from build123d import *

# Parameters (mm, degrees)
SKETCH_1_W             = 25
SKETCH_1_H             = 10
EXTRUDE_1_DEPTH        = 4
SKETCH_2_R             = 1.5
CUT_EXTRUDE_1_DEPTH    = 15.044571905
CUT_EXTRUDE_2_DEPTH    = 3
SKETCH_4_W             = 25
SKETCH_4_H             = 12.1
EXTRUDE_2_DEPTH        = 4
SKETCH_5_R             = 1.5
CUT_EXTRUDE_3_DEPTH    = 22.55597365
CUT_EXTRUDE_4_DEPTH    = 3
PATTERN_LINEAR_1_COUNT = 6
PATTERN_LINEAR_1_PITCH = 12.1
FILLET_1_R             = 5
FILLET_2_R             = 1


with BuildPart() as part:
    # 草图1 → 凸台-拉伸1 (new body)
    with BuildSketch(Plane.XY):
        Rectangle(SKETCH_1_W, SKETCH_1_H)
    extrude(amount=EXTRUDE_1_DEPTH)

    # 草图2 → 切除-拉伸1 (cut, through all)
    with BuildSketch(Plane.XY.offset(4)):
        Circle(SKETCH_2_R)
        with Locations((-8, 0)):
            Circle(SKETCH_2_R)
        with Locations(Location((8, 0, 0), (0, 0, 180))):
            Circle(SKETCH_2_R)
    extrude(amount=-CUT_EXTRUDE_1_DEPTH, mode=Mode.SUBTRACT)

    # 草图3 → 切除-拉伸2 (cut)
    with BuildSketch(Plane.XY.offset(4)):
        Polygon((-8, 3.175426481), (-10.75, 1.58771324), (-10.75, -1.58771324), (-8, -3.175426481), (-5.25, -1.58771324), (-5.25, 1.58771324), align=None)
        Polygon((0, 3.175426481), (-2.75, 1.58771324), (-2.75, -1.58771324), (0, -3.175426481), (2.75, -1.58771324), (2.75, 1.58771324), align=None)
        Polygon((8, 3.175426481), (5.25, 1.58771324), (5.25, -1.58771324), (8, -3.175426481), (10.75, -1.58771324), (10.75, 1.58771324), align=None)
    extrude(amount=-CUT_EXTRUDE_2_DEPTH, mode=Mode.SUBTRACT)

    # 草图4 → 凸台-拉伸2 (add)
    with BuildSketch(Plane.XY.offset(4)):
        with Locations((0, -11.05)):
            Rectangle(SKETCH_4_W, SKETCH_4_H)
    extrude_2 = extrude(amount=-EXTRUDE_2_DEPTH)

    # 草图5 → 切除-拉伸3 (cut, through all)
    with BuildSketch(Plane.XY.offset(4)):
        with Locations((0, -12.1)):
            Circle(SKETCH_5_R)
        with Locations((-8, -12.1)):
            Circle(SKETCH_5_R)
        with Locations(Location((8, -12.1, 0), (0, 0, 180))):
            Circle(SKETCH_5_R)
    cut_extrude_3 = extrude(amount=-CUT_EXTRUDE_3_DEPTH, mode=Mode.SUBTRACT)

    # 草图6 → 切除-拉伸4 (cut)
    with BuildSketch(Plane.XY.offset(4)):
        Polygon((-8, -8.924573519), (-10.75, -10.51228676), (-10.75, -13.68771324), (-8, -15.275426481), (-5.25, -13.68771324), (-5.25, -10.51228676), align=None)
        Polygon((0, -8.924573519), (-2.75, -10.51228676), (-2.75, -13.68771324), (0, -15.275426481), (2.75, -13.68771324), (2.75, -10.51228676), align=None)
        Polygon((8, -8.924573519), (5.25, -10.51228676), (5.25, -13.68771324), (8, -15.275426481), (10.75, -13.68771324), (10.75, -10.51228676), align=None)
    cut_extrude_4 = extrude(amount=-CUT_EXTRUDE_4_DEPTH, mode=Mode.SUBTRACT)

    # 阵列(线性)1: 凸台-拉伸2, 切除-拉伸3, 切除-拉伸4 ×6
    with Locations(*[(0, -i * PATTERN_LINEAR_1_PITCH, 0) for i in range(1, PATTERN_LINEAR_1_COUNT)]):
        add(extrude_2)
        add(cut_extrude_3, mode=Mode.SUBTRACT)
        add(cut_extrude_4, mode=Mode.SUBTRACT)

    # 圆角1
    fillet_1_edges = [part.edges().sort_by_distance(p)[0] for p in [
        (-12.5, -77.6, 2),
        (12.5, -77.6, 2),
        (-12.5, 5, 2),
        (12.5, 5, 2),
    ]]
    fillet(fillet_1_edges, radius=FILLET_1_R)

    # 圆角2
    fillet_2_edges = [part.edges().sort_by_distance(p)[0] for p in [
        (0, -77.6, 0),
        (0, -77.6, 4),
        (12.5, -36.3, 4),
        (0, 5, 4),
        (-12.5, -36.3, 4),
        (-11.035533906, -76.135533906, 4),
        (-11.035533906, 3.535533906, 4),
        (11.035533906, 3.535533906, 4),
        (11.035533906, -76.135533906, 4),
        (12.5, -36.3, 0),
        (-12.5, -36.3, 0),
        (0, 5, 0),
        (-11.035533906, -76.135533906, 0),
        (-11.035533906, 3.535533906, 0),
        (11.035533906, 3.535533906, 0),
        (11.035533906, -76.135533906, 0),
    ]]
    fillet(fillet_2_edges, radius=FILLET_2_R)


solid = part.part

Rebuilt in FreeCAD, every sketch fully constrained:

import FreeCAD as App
import Part
import Sketcher

V = App.Vector
Q = App.Units.Quantity


def edges_at(feature, points):
    """Names of the edges that pass closest to the given points."""
    edges = feature.Shape.Edges
    near = lambda p: min(range(len(edges)), key=lambda i: edges[i].distToShape(Part.Vertex(*p))[0])
    return sorted({f"Edge{near(p) + 1}" for p in points})


def add_polygon(sketch, points):
    """Adds a closed chain of lines whose ends are joined by coincident constraints."""
    first, n = sketch.GeometryCount, len(points)
    for a, b in zip(points, points[1:] + points[:1]):
        sketch.addGeometry(Part.LineSegment(App.Vector(*a, 0), App.Vector(*b, 0)), False)
    for i in range(n):
        sketch.addConstraint(Sketcher.Constraint("Coincident", first + i, 2, first + (i + 1) % n, 1))

doc = App.newDocument("Part")
body = doc.addObject("PartDesign::Body", "Body")

sketch1 = body.newObject("Sketcher::SketchObject", "Sketch")
sketch1.AttachmentSupport = (doc.getObject("XY_Plane"), [""])
sketch1.MapMode = "FlatFace"
add_polygon(sketch1, [(-12.5, 5), (-12.5, -5), (12.5, -5), (12.5, 5)])
sketch1.addConstraint(Sketcher.Constraint("Vertical", 0))
sketch1.addConstraint(Sketcher.Constraint("Horizontal", 1))
sketch1.addConstraint(Sketcher.Constraint("Vertical", 2))
sketch1.addConstraint(Sketcher.Constraint("Horizontal", 3))
sketch1.addConstraint(Sketcher.Constraint("Symmetric", 0, 2, 2, 2, -1, 1))
sketch1.addConstraint(Sketcher.Constraint("DistanceX", 1, 1, 1, 2, 25.0))
sketch1.addConstraint(Sketcher.Constraint("DistanceY", 0, 2, 0, 1, 10.0))
pad1 = body.newObject("PartDesign::Pad", "Pad")
pad1.Profile = sketch1
pad1.Length = 4

sketch2 = body.newObject("Sketcher::SketchObject", "Sketch001")
sketch2.AttachmentSupport = (doc.getObject("XY_Plane"), [""])
sketch2.MapMode = "FlatFace"
sketch2.AttachmentOffset = App.Placement(V(0, 0, 4), App.Rotation())
sketch2.addGeometry(Part.Circle(V(0, 0, 0), V(0, 0, 1), 1.5), False)
sketch2.addGeometry(Part.Circle(V(-8, 0, 0), V(0, 0, 1), 1.5), False)
sketch2.addGeometry(Part.Circle(V(8, 0, 0), V(0, 0, 1), 1.5), False)
sketch2.addConstraint(Sketcher.Constraint("Coincident", 0, 3, -1, 1))
sketch2.addConstraint(Sketcher.Constraint("Equal", 0, 1))
sketch2.addConstraint(Sketcher.Constraint("Equal", 1, 2))
sketch2.addConstraint(Sketcher.Constraint("Symmetric", 1, 3, 2, 3, -1, 1))
sketch2.addConstraint(Sketcher.Constraint("PointOnObject", 1, 3, -1))
sketch2.addConstraint(Sketcher.Constraint("Diameter", 0, 3.0))
sketch2.addConstraint(Sketcher.Constraint("DistanceX", 1, 3, -1, 1, 8.0))
pocket1 = body.newObject("PartDesign::Pocket", "Pocket")
pocket1.Profile = sketch2
pocket1.Type = "ThroughAll"

sketch3 = body.newObject("Sketcher::SketchObject", "Sketch002")
sketch3.AttachmentSupport = (doc.getObject("XY_Plane"), [""])
sketch3.MapMode = "FlatFace"
sketch3.AttachmentOffset = App.Placement(V(0, 0, 4), App.Rotation())
add_polygon(sketch3, [(-8, 3.175426), (-10.75, 1.587713), (-10.75, -1.587713), (-8, -3.175426), (-5.25, -1.587713), (-5.25, 1.587713)])
add_polygon(sketch3, [(0, 3.175426), (-2.75, 1.587713), (-2.75, -1.587713), (0, -3.175426), (2.75, -1.587713), (2.75, 1.587713)])
add_polygon(sketch3, [(8, 3.175426), (5.25, 1.587713), (5.25, -1.587713), (8, -3.175426), (10.75, -1.587713), (10.75, 1.587713)])
sketch3.addConstraint(Sketcher.Constraint("Vertical", 1))
sketch3.addConstraint(Sketcher.Constraint("Vertical", 4))
sketch3.addConstraint(Sketcher.Constraint("Vertical", 7))
sketch3.addConstraint(Sketcher.Constraint("Vertical", 10))
sketch3.addConstraint(Sketcher.Constraint("Vertical", 13))
sketch3.addConstraint(Sketcher.Constraint("Vertical", 16))
sketch3.addConstraint(Sketcher.Constraint("Symmetric", 6, 2, 9, 2, -1, 1))
sketch3.addConstraint(Sketcher.Constraint("Symmetric", 8, 2, 11, 2, -1, 1))
sketch3.addConstraint(Sketcher.Constraint("Symmetric", 3, 2, 12, 2, -1, 1))
sketch3.addConstraint(Sketcher.Constraint("Symmetric", 5, 2, 14, 2, -1, 1))
sketch3.addConstraint(Sketcher.Constraint("Symmetric", 0, 2, 15, 2, -1, 1))
sketch3.addConstraint(Sketcher.Constraint("Symmetric", 2, 2, 17, 2, -1, 1))
sketch3.addConstraint(Sketcher.Constraint("Symmetric", 2, 2, 14, 2, -2))
sketch3.addConstraint(Sketcher.Constraint("PointOnObject", 8, 2, -2))
sketch3.addConstraint(Sketcher.Constraint("Parallel", 0, 3))
sketch3.addConstraint(Sketcher.Constraint("Parallel", 2, 5))
sketch3.addConstraint(Sketcher.Constraint("Parallel", 3, 6))
sketch3.addConstraint(Sketcher.Constraint("Parallel", 5, 8))
sketch3.addConstraint(Sketcher.Constraint("Parallel", 8, 11))
sketch3.addConstraint(Sketcher.Constraint("Parallel", 11, 14))
sketch3.addConstraint(Sketcher.Constraint("Parallel", 14, 17))
sketch3.addConstraint(Sketcher.Constraint("Horizontal", 1, 2, 3, 2))
sketch3.addConstraint(Sketcher.Constraint("Horizontal", 0, 2, 4, 2))
sketch3.addConstraint(Sketcher.Constraint("Horizontal", 4, 2, 6, 2))
sketch3.addConstraint(Sketcher.Constraint("Horizontal", 2, 2, 8, 2))
sketch3.addConstraint(Sketcher.Constraint("Angle", 0, Q("-150 deg")))
sketch3.addConstraint(Sketcher.Constraint("DistanceX", 2, 2, -1, 1, 8.0))
sketch3.addConstraint(Sketcher.Constraint("DistanceX", 1, 2, 3, 2, 5.5))
sketch3.addConstraint(Sketcher.Constraint("DistanceY", 1, 2, 1, 1, 3.175426))
pocket2 = body.newObject("PartDesign::Pocket", "Pocket001")
pocket2.Profile = sketch3
pocket2.Length = 3

sketch4 = body.newObject("Sketcher::SketchObject", "Sketch003")
sketch4.AttachmentSupport = (doc.getObject("XY_Plane"), [""])
sketch4.MapMode = "FlatFace"
sketch4.AttachmentOffset = App.Placement(V(0, 0, 4), App.Rotation())
add_polygon(sketch4, [(-12.5, -5), (-12.5, -17.1), (12.5, -17.1), (12.5, -5)])
sketch4.addConstraint(Sketcher.Constraint("Vertical", 0))
sketch4.addConstraint(Sketcher.Constraint("Horizontal", 1))
sketch4.addConstraint(Sketcher.Constraint("Vertical", 2))
sketch4.addConstraint(Sketcher.Constraint("Horizontal", 3))
sketch4.addConstraint(Sketcher.Constraint("DistanceX", 1, 1, 1, 2, 25.0))
sketch4.addConstraint(Sketcher.Constraint("DistanceY", 0, 2, 0, 1, 12.1))
sketch4.addConstraint(Sketcher.Constraint("DistanceY", 2, 2, -1, 1, 5.0))
sketch4.addConstraint(Sketcher.Constraint("DistanceX", 0, 2, -1, 1, 12.5))
pad2 = body.newObject("PartDesign::Pad", "Pad001")
pad2.Profile = sketch4
pad2.Length = 4
pad2.Reversed = True

sketch5 = body.newObject("Sketcher::SketchObject", "Sketch004")
sketch5.AttachmentSupport = (doc.getObject("XY_Plane"), [""])
sketch5.MapMode = "FlatFace"
sketch5.AttachmentOffset = App.Placement(V(0, 0, 4), App.Rotation())
sketch5.addGeometry(Part.Circle(V(0, -12.1, 0), V(0, 0, 1), 1.5), False)
sketch5.addGeometry(Part.Circle(V(-8, -12.1, 0), V(0, 0, 1), 1.5), False)
sketch5.addGeometry(Part.Circle(V(8, -12.1, 0), V(0, 0, 1), 1.5), False)
sketch5.addConstraint(Sketcher.Constraint("Equal", 0, 1))
sketch5.addConstraint(Sketcher.Constraint("Equal", 1, 2))
sketch5.addConstraint(Sketcher.Constraint("Symmetric", 1, 3, 2, 3, -2))
sketch5.addConstraint(Sketcher.Constraint("PointOnObject", 0, 3, -2))
sketch5.addConstraint(Sketcher.Constraint("Horizontal", 0, 3, 1, 3))
sketch5.addConstraint(Sketcher.Constraint("Diameter", 0, 3.0))
sketch5.addConstraint(Sketcher.Constraint("DistanceX", 1, 3, -1, 1, 8.0))
sketch5.addConstraint(Sketcher.Constraint("DistanceY", 0, 3, -1, 1, 12.1))
pocket3 = body.newObject("PartDesign::Pocket", "Pocket002")
pocket3.Profile = sketch5
pocket3.Type = "ThroughAll"

sketch6 = body.newObject("Sketcher::SketchObject", "Sketch005")
sketch6.AttachmentSupport = (doc.getObject("XY_Plane"), [""])
sketch6.MapMode = "FlatFace"
sketch6.AttachmentOffset = App.Placement(V(0, 0, 4), App.Rotation())
add_polygon(sketch6, [(-8, -8.924574), (-10.75, -10.512287), (-10.75, -13.687713), (-8, -15.275426), (-5.25, -13.687713), (-5.25, -10.512287)])
add_polygon(sketch6, [(0, -8.924574), (-2.75, -10.512287), (-2.75, -13.687713), (0, -15.275426), (2.75, -13.687713), (2.75, -10.512287)])
add_polygon(sketch6, [(8, -8.924574), (5.25, -10.512287), (5.25, -13.687713), (8, -15.275426), (10.75, -13.687713), (10.75, -10.512287)])
sketch6.addConstraint(Sketcher.Constraint("Vertical", 1))
sketch6.addConstraint(Sketcher.Constraint("Vertical", 4))
sketch6.addConstraint(Sketcher.Constraint("Vertical", 7))
sketch6.addConstraint(Sketcher.Constraint("Vertical", 10))
sketch6.addConstraint(Sketcher.Constraint("Vertical", 13))
sketch6.addConstraint(Sketcher.Constraint("Vertical", 16))
sketch6.addConstraint(Sketcher.Constraint("Symmetric", 7, 2, 9, 2, -2))
sketch6.addConstraint(Sketcher.Constraint("Symmetric", 4, 2, 12, 2, -2))
sketch6.addConstraint(Sketcher.Constraint("Symmetric", 2, 2, 14, 2, -2))
sketch6.addConstraint(Sketcher.Constraint("Symmetric", 1, 2, 15, 2, -2))
sketch6.addConstraint(Sketcher.Constraint("Symmetric", 5, 2, 17, 2, -2))
sketch6.addConstraint(Sketcher.Constraint("PointOnObject", 8, 2, -2))
sketch6.addConstraint(Sketcher.Constraint("PointOnObject", 11, 2, -2))
sketch6.addConstraint(Sketcher.Constraint("Parallel", 0, 3))
sketch6.addConstraint(Sketcher.Constraint("Parallel", 2, 5))
sketch6.addConstraint(Sketcher.Constraint("Parallel", 3, 6))
sketch6.addConstraint(Sketcher.Constraint("Parallel", 5, 8))
sketch6.addConstraint(Sketcher.Constraint("Parallel", 6, 9))
sketch6.addConstraint(Sketcher.Constraint("Parallel", 8, 11))
sketch6.addConstraint(Sketcher.Constraint("Parallel", 11, 14))
sketch6.addConstraint(Sketcher.Constraint("Parallel", 14, 17))
sketch6.addConstraint(Sketcher.Constraint("Horizontal", 1, 2, 3, 2))
sketch6.addConstraint(Sketcher.Constraint("Horizontal", 0, 2, 4, 2))
sketch6.addConstraint(Sketcher.Constraint("Horizontal", 4, 2, 6, 2))
sketch6.addConstraint(Sketcher.Constraint("Horizontal", 3, 2, 7, 2))
sketch6.addConstraint(Sketcher.Constraint("Horizontal", 2, 2, 8, 2))
sketch6.addConstraint(Sketcher.Constraint("Angle", 0, Q("-150 deg")))
sketch6.addConstraint(Sketcher.Constraint("DistanceX", 2, 2, -1, 1, 8.0))
sketch6.addConstraint(Sketcher.Constraint("DistanceX", 1, 2, 3, 2, 5.5))
sketch6.addConstraint(Sketcher.Constraint("DistanceY", 1, 2, 1, 1, 3.175426))
sketch6.addConstraint(Sketcher.Constraint("DistanceY", 0, 2, -1, 1, 10.512287))
pocket4 = body.newObject("PartDesign::Pocket", "Pocket003")
pocket4.Profile = sketch6
pocket4.Length = 3
doc.recompute()

linearpattern = body.newObject("PartDesign::LinearPattern", "LinearPattern")
linearpattern.Originals = [pad2, pocket3, pocket4]
linearpattern.Direction = (doc.getObject("Y_Axis"), [""])
linearpattern.Mode = "offset"
linearpattern.Offset = 12.1
linearpattern.Occurrences = 6
linearpattern.Reversed = True
body.Tip = linearpattern
doc.recompute()

fillet = body.newObject("PartDesign::Fillet", "Fillet")
fillet.Base = (linearpattern, edges_at(linearpattern, [
    (-12.5, -77.6, 2),
    (12.5, -77.6, 2),
    (-12.5, 5, 2),
    (12.5, 5, 2),
]))
fillet.Radius = 5
doc.recompute()

fillet2 = body.newObject("PartDesign::Fillet", "Fillet001")
fillet2.Base = (fillet, edges_at(fillet, [
    (0, -77.6, 0),
    (0, -77.6, 4),
    (12.5, -36.3, 4),
    (0, 5, 4),
    (-12.5, -36.3, 4),
    (-11.036, -76.136, 4),
    (-11.036, 3.536, 4),
    (11.036, 3.536, 4),
    (11.036, -76.136, 4),
    (12.5, -36.3, 0),
    (-12.5, -36.3, 0),
    (0, 5, 0),
    (-11.036, -76.136, 0),
    (-11.036, 3.536, 0),
    (11.036, 3.536, 0),
    (11.036, -76.136, 0),
]))
fillet2.Radius = 1

doc.recompute()
